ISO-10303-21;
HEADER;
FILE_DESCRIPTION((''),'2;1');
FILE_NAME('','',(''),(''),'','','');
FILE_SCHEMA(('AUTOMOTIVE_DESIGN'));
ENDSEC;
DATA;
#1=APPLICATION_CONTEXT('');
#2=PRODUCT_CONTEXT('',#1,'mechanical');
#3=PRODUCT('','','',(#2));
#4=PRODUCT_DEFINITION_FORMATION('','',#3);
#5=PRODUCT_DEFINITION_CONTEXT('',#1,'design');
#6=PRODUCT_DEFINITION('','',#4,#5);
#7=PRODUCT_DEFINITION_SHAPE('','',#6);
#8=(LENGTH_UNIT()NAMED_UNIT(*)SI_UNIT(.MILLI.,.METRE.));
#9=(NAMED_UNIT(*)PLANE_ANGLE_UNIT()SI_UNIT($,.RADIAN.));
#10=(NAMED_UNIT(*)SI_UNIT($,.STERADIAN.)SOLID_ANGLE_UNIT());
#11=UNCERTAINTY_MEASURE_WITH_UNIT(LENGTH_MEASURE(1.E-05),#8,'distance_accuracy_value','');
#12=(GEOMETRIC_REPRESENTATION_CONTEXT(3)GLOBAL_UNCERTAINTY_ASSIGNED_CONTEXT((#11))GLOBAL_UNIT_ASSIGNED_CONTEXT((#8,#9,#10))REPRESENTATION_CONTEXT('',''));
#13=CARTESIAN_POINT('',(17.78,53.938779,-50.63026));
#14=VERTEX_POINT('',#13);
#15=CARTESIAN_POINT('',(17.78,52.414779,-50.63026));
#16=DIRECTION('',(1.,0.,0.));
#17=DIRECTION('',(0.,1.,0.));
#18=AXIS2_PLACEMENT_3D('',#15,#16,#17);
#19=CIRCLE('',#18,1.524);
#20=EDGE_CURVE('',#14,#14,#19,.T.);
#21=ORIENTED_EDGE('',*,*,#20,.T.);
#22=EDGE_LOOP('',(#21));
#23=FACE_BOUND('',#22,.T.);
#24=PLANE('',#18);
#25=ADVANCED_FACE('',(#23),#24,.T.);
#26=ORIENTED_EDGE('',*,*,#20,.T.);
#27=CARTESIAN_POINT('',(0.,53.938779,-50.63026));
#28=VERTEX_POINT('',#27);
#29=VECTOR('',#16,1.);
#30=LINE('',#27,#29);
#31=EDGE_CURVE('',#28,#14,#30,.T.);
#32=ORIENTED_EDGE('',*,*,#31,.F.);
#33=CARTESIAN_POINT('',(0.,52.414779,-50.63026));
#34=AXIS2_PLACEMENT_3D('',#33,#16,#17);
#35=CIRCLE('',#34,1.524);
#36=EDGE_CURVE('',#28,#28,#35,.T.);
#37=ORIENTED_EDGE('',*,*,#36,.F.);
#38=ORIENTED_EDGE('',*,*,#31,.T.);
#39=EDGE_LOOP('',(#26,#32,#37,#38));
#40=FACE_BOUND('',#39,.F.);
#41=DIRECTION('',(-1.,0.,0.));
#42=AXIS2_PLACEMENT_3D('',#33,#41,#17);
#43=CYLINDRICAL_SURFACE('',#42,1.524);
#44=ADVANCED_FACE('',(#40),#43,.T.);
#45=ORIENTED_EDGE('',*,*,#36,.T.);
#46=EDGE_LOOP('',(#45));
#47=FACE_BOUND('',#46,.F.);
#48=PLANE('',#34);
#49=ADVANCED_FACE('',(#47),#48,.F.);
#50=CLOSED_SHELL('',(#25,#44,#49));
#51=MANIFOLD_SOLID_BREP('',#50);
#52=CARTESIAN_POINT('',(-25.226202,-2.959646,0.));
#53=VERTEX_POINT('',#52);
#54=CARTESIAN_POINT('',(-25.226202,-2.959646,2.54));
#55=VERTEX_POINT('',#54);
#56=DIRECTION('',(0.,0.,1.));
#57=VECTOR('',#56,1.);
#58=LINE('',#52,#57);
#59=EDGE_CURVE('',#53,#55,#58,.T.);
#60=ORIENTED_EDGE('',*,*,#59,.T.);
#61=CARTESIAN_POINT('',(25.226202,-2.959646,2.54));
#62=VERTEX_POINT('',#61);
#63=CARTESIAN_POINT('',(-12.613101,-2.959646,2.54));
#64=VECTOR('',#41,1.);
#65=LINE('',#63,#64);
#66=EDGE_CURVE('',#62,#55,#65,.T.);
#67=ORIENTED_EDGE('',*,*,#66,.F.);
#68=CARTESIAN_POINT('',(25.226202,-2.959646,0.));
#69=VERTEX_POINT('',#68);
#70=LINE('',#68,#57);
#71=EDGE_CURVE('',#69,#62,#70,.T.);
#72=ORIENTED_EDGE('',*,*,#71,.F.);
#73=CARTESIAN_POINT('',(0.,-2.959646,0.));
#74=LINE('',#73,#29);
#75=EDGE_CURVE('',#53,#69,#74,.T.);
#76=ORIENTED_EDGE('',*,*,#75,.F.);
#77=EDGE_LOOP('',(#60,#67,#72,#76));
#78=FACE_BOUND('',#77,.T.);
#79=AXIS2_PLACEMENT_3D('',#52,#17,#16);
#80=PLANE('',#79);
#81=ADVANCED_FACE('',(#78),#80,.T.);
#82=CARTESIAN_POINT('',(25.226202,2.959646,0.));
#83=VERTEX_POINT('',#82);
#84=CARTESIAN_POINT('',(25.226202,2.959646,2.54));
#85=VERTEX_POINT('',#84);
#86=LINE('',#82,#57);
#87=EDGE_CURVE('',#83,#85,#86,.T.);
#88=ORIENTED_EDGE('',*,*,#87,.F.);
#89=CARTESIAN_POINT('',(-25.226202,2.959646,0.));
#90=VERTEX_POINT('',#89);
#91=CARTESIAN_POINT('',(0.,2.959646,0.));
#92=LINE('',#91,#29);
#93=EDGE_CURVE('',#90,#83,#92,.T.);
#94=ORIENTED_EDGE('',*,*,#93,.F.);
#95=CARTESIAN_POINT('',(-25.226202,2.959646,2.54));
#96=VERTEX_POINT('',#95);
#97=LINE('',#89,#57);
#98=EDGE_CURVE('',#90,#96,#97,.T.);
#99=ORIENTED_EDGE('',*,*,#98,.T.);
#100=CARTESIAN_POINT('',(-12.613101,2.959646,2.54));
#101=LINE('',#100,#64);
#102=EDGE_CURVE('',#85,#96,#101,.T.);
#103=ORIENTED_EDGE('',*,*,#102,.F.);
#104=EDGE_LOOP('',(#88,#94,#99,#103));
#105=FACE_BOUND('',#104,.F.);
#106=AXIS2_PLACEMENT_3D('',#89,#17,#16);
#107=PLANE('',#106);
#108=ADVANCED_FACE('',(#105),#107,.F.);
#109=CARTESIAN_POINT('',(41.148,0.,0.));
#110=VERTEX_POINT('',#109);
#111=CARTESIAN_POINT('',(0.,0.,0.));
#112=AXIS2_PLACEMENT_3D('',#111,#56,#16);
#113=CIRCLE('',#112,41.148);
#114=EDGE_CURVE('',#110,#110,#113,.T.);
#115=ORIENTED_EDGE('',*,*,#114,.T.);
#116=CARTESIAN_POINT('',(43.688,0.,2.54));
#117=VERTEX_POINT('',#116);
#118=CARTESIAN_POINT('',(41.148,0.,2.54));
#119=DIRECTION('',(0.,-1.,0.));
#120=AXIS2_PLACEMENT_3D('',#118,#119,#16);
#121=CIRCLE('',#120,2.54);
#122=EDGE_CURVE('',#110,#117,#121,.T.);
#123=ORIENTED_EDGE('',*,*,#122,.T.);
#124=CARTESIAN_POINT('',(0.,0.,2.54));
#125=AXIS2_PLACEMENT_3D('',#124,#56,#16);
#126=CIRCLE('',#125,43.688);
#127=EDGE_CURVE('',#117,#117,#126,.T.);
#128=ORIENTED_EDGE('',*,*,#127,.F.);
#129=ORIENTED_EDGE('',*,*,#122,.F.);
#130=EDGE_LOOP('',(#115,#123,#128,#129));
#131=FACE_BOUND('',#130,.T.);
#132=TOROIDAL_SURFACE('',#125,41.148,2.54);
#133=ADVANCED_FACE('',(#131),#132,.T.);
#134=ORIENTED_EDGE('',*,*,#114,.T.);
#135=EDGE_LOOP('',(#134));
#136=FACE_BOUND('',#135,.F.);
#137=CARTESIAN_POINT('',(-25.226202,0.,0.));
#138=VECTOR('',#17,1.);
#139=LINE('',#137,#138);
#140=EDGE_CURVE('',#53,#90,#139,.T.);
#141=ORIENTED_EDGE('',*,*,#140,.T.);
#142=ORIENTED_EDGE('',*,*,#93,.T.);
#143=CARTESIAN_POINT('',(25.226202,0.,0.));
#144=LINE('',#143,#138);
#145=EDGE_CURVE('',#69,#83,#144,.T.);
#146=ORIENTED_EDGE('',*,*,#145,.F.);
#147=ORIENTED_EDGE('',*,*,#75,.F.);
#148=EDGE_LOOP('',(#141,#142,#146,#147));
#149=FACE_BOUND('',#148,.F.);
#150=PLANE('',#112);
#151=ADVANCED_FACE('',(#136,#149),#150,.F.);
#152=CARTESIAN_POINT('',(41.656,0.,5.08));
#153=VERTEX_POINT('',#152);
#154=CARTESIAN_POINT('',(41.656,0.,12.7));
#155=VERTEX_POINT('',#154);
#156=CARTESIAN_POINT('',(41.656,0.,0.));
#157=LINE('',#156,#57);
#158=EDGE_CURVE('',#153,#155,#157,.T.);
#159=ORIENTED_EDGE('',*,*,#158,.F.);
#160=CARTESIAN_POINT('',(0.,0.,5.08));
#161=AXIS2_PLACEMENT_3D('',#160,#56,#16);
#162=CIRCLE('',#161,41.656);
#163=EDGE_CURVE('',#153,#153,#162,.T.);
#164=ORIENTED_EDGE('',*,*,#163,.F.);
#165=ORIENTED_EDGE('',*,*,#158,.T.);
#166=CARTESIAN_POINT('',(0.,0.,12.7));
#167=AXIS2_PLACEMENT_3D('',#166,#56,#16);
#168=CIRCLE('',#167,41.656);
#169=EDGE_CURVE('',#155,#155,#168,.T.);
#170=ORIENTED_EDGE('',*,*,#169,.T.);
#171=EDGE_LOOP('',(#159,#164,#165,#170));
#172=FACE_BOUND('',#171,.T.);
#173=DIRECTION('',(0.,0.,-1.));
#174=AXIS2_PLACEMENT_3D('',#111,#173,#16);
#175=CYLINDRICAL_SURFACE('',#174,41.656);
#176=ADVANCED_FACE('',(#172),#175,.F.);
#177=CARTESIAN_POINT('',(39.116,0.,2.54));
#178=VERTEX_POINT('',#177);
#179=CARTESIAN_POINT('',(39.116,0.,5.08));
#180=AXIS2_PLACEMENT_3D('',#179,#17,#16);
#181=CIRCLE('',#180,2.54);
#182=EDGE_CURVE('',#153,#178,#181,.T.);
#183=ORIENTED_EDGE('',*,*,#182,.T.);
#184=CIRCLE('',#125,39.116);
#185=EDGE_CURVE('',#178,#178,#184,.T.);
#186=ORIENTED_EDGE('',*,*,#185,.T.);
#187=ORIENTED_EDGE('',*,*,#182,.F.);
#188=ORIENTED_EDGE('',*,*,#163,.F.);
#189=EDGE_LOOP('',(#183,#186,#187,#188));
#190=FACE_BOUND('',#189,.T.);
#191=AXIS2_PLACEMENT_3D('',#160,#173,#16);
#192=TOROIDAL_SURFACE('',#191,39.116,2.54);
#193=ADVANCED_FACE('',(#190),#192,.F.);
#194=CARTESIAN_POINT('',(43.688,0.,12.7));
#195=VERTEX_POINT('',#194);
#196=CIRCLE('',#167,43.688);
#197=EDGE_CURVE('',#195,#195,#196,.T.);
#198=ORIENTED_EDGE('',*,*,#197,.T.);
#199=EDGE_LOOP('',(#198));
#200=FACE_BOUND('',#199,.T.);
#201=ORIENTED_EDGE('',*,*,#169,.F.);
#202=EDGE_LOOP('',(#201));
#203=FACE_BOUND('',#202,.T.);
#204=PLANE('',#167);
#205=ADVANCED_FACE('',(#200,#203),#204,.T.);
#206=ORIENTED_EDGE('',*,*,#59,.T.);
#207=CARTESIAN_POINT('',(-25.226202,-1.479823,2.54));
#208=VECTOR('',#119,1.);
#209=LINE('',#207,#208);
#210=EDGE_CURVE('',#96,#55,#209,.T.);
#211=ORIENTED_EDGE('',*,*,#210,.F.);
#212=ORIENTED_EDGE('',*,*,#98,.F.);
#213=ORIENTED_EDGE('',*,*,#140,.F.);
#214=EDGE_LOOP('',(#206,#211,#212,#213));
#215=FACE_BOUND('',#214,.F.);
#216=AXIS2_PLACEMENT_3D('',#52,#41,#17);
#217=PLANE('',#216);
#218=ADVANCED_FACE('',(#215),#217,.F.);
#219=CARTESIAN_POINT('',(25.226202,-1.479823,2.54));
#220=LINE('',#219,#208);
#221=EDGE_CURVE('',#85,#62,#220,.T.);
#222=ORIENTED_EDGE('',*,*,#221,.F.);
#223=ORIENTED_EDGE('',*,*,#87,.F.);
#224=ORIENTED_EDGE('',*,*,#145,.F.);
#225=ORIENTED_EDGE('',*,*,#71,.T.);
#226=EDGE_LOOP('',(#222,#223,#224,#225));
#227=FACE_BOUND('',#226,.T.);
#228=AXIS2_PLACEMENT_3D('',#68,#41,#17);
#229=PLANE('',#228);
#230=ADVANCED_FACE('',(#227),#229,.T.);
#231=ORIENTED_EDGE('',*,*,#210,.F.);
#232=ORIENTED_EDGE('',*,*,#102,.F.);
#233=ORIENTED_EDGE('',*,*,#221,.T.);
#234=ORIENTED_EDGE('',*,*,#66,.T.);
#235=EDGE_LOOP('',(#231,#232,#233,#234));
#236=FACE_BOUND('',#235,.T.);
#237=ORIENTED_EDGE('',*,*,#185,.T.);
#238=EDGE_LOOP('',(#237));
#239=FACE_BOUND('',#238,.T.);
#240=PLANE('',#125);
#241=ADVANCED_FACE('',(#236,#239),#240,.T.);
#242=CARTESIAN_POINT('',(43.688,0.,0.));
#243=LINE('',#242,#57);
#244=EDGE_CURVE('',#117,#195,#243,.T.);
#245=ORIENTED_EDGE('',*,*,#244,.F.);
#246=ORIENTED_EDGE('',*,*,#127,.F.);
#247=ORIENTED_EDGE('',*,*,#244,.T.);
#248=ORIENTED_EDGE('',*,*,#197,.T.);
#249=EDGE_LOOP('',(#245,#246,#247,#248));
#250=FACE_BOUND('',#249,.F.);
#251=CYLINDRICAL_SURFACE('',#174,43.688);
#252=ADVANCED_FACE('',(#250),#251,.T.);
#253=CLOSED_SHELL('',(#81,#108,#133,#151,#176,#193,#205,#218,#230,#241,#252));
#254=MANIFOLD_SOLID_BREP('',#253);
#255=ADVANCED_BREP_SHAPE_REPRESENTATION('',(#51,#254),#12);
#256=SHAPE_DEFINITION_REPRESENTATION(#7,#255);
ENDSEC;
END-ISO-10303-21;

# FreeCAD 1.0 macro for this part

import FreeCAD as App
import Part
import Sketcher

V = App.Vector
Q = App.Units.Quantity


def edges_at(feature, points):
    """Names of the edges that pass closest to the given points."""
    edges = feature.Shape.Edges
    near = lambda p: min(range(len(edges)), key=lambda i: edges[i].distToShape(Part.Vertex(*p))[0])
    return sorted({f"Edge{near(p) + 1}" for p in points})

doc = App.newDocument("Part")
body = doc.addObject("PartDesign::Body", "Body")

sketch1 = doc.addObject("Sketcher::SketchObject", "Sketch")
body.addObject(sketch1)
sketch1.AttachmentSupport = (doc.XY_Plane, [""])
sketch1.MapMode = "FlatFace"
sketch1.addGeometry(Part.Circle(V(0, 0, 0), V(0, 0, 1), 43.688), False)
sketch1.addGeometry(Part.Circle(V(0, 0, 0), V(0, 0, 1), 41.656), False)
sketch1.addConstraint(Sketcher.Constraint("Coincident", 0, 3, -1, 1))
sketch1.addConstraint(Sketcher.Constraint("Coincident", 1, 3, -1, 1))
sketch1.addConstraint(Sketcher.Constraint("Diameter", 0, Q("3.44 in")))
sketch1.addConstraint(Sketcher.Constraint("Diameter", 1, Q("3.28 in")))
pad1 = doc.addObject("PartDesign::Pad", "Pad")
body.addObject(pad1)
pad1.Profile = sketch1
pad1.Length = Q("0.5 in")

sketch2 = doc.addObject("Sketcher::SketchObject", "Sketch001")
body.addObject(sketch2)
sketch2.AttachmentSupport = (doc.XY_Plane, [""])
sketch2.MapMode = "FlatFace"
sketch2.addGeometry(Part.Circle(V(0, 0, 0), V(0, 0, 1), 41.656), False)
sketch2.addConstraint(Sketcher.Constraint("Coincident", 0, 3, -1, 1))
sketch2.addConstraint(Sketcher.Constraint("Diameter", 0, Q("3.28 in")))
pad2 = doc.addObject("PartDesign::Pad", "Pad001")
body.addObject(pad2)
pad2.Profile = sketch2
pad2.Length = Q("0.1 in")
doc.recompute()

fillet = doc.addObject("PartDesign::Fillet", "Fillet")
body.addObject(fillet)
fillet.Base = (pad2, edges_at(pad2, [(-41.656, 0, 2.54), (-43.688, 0, 0)]))
fillet.Radius = Q("0.1 in")

sketch3 = doc.addObject("Sketcher::SketchObject", "Sketch002")
body.addObject(sketch3)
sketch3.AttachmentSupport = (doc.XY_Plane, [""])
sketch3.MapMode = "FlatFace"
sketch3.addGeometry(Part.LineSegment(V(-25.226202, 2.959646, 0), V(-25.226202, -2.959646, 0)), False)
sketch3.addGeometry(Part.LineSegment(V(-25.226202, -2.959646, 0), V(25.226202, -2.959646, 0)), False)
sketch3.addGeometry(Part.LineSegment(V(25.226202, -2.959646, 0), V(25.226202, 2.959646, 0)), False)
sketch3.addGeometry(Part.LineSegment(V(25.226202, 2.959646, 0), V(-25.226202, 2.959646, 0)), False)
sketch3.addConstraint(Sketcher.Constraint("Coincident", 0, 2, 1, 1))
sketch3.addConstraint(Sketcher.Constraint("Coincident", 1, 2, 2, 1))
sketch3.addConstraint(Sketcher.Constraint("Coincident", 2, 2, 3, 1))
sketch3.addConstraint(Sketcher.Constraint("Coincident", 3, 2, 0, 1))
sketch3.addConstraint(Sketcher.Constraint("Vertical", 0))
sketch3.addConstraint(Sketcher.Constraint("Horizontal", 1))
sketch3.addConstraint(Sketcher.Constraint("Vertical", 2))
sketch3.addConstraint(Sketcher.Constraint("Horizontal", 3))
sketch3.addConstraint(Sketcher.Constraint("Symmetric", 0, 2, 2, 2, -1, 1))
sketch3.addConstraint(Sketcher.Constraint("DistanceX", 1, 1, 1, 2, Q("50.452404 mm")))
sketch3.addConstraint(Sketcher.Constraint("DistanceY", 0, 2, 0, 1, Q("5.919292 mm")))
pocket1 = doc.addObject("PartDesign::Pocket", "Pocket")
body.addObject(pocket1)
pocket1.Profile = sketch3
pocket1.Length = Q("1 in")
pocket1.Reversed = True
body2 = doc.addObject("PartDesign::Body", "Body001")

sketch4 = doc.addObject("Sketcher::SketchObject", "Sketch003")
body2.addObject(sketch4)
sketch4.AttachmentSupport = (doc.getObject("YZ_Plane001"), [""])
sketch4.MapMode = "FlatFace"
sketch4.addGeometry(Part.Circle(V(52.414779, -50.63026, 0), V(0, 0, 1), 1.524), False)
sketch4.addConstraint(Sketcher.Constraint("Diameter", 0, Q("0.12 in")))
sketch4.addConstraint(Sketcher.Constraint("DistanceX", -1, 1, 0, 3, Q("52.414779 mm")))
sketch4.addConstraint(Sketcher.Constraint("DistanceY", 0, 3, -1, 1, Q("50.63026 mm")))
pad3 = doc.addObject("PartDesign::Pad", "Pad002")
body2.addObject(pad3)
pad3.Profile = sketch4
pad3.Length = Q("0.7 in")

doc.recompute()
